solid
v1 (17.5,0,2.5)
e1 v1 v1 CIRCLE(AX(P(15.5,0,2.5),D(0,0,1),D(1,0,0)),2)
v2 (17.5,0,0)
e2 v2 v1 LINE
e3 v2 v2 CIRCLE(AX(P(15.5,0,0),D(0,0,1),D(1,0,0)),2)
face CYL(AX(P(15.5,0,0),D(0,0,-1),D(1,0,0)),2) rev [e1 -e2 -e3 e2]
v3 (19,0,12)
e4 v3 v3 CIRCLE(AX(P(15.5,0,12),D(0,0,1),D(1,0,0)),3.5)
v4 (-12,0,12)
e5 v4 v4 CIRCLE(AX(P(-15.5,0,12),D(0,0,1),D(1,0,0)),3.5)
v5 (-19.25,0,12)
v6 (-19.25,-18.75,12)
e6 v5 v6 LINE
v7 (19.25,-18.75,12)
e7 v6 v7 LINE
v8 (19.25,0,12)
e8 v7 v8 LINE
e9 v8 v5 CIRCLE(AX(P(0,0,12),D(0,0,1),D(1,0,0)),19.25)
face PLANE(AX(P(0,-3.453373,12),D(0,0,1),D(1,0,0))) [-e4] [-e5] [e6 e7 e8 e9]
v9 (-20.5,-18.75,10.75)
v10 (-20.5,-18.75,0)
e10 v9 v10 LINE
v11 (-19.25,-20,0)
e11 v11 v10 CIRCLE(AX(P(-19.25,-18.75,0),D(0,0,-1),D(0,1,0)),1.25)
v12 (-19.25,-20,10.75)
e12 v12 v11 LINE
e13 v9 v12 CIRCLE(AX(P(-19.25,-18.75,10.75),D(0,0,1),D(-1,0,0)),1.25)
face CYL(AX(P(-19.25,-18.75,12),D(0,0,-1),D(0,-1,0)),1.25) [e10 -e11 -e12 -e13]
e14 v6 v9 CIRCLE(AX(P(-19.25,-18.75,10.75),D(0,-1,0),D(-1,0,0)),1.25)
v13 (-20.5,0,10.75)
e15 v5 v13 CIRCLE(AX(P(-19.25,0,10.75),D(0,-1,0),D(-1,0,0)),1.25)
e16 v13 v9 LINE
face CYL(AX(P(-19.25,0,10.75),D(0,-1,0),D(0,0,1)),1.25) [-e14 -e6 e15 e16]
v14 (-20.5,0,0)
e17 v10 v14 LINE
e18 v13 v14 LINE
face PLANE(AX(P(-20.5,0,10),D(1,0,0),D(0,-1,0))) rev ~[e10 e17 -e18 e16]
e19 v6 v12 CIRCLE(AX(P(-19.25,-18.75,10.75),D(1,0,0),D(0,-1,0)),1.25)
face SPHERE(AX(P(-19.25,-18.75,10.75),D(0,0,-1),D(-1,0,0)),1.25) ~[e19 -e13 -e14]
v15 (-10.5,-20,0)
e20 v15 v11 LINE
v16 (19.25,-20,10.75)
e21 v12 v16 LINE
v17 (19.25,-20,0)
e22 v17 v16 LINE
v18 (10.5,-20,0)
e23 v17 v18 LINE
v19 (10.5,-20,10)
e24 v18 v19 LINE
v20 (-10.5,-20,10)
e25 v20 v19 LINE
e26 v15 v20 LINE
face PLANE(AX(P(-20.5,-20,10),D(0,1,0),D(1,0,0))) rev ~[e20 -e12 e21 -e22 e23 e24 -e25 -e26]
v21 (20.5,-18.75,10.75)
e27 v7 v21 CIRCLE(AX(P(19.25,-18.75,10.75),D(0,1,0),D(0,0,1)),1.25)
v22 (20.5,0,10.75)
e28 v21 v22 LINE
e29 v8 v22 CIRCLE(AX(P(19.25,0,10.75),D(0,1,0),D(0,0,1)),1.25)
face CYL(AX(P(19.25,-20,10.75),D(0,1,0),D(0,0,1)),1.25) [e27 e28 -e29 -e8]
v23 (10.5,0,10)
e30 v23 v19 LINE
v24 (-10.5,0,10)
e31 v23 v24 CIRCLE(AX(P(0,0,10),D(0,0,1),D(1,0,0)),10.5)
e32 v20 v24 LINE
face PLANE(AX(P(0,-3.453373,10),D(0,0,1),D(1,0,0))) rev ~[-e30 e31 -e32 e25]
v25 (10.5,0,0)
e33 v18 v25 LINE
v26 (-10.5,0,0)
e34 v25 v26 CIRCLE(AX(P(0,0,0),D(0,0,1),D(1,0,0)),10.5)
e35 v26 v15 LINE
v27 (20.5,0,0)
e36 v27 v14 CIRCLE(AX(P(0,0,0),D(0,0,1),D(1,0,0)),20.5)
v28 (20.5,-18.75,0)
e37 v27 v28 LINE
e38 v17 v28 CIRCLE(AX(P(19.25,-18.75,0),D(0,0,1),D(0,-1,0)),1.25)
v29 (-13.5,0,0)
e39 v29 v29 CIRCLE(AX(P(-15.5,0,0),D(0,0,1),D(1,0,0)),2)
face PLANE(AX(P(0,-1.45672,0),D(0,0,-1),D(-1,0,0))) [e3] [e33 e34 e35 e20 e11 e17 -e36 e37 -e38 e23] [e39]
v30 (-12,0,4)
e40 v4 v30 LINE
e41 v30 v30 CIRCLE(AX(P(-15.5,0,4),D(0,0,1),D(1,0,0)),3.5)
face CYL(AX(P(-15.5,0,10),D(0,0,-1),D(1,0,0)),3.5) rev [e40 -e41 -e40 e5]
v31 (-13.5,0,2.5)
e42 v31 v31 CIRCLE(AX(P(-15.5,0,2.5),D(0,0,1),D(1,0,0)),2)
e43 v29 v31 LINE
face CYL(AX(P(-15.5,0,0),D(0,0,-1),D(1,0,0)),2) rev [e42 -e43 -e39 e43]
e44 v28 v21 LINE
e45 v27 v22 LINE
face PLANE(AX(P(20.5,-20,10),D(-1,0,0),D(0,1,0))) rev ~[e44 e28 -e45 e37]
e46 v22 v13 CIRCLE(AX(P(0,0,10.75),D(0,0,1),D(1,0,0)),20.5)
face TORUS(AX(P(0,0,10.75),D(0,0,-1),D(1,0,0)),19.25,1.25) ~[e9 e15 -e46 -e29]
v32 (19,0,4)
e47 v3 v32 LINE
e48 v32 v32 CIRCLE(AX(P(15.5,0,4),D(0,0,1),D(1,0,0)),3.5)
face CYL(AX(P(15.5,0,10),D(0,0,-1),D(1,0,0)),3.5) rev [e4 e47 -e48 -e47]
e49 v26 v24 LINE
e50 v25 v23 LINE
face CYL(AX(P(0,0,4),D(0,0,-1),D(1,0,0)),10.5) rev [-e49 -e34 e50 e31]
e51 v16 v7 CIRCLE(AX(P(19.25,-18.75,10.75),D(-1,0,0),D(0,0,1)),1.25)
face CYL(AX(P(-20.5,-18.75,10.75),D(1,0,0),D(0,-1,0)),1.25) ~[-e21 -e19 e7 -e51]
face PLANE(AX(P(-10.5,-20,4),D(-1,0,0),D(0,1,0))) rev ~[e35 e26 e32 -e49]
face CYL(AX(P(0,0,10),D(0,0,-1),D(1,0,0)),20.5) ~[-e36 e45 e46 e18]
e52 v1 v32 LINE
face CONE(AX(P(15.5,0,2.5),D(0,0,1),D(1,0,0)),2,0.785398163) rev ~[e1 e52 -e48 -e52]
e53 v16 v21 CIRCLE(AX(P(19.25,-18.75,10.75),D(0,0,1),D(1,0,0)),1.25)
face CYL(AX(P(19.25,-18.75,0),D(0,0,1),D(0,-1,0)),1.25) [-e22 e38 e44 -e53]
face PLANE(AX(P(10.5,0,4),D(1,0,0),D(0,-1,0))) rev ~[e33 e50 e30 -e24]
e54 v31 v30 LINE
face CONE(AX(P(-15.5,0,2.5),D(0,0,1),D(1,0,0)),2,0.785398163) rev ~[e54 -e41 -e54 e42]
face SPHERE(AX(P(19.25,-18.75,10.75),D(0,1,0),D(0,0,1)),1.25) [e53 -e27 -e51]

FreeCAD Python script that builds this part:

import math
import FreeCAD as App
import Part
import Sketcher
Q = App.Units.Quantity


def edges_at(feature, points):
    """Names of the edges that pass closest to the given points."""
    edges = feature.Shape.Edges
    near = lambda p: min(range(len(edges)), key=lambda i: edges[i].distToShape(Part.Vertex(*p))[0])
    return sorted({f"Edge{near(p) + 1}" for p in points})

doc = App.newDocument("Part")
body = doc.addObject("PartDesign::Body", "Body")

sketch1 = body.newObject("Sketcher::SketchObject", "Sketch")
sketch1.AttachmentSupport = (doc.getObject("XY_Plane"), [""])
sketch1.MapMode = "FlatFace"
sketch1.addGeometry([
    Part.LineSegment(App.Vector(-10.5, -20, 0), App.Vector(-10.5, 0, 0)),
    Part.ArcOfCircle(Part.Circle(App.Vector(0, 0, 0), App.Vector(0, 0, 1), 10.5), math.radians(0), math.radians(180)),
    Part.LineSegment(App.Vector(10.5, 0, 0), App.Vector(10.5, -20, 0)),
    Part.LineSegment(App.Vector(10.5, -20, 0), App.Vector(20.5, -20, 0)),
    Part.LineSegment(App.Vector(20.5, -20, 0), App.Vector(20.5, 0, 0)),
    Part.ArcOfCircle(Part.Circle(App.Vector(0, 0, 0), App.Vector(0, 0, 1), 20.5), math.radians(0), math.radians(180)),
    Part.LineSegment(App.Vector(-20.5, 0, 0), App.Vector(-20.5, -20, 0)),
    Part.LineSegment(App.Vector(-20.5, -20, 0), App.Vector(-10.5, -20, 0)),
    Part.Circle(App.Vector(15.5, 0, 0), App.Vector(0, 0, 1), 2),
    Part.Circle(App.Vector(-15.5, 0, 0), App.Vector(0, 0, 1), 2),
], False)
sketch1.addConstraint([
    Sketcher.Constraint("Tangent", 0, 2, 1, 2),
    Sketcher.Constraint("Tangent", 1, 1, 2, 1),
    Sketcher.Constraint("Coincident", 2, 2, 3, 1),
    Sketcher.Constraint("Coincident", 3, 2, 4, 1),
    Sketcher.Constraint("Tangent", 4, 2, 5, 1),
    Sketcher.Constraint("Tangent", 5, 2, 6, 1),
    Sketcher.Constraint("Coincident", 6, 2, 7, 1),
    Sketcher.Constraint("Coincident", 7, 2, 0, 1),
    Sketcher.Constraint("Vertical", 0),
    Sketcher.Constraint("Vertical", 2),
    Sketcher.Constraint("Horizontal", 3),
    Sketcher.Constraint("Vertical", 4),
    Sketcher.Constraint("Vertical", 6),
    Sketcher.Constraint("Horizontal", 7),
    Sketcher.Constraint("Coincident", 1, 3, -1, 1),
    Sketcher.Constraint("Coincident", 5, 3, -1, 1),
    Sketcher.Constraint("Equal", 8, 9),
    Sketcher.Constraint("Symmetric", 8, 3, 9, 3, -1, 1),
    Sketcher.Constraint("PointOnObject", 8, 3, -1),
    Sketcher.Constraint("Horizontal", 3, 2, 6, 2),
    Sketcher.Constraint("Diameter", 8, Q("4 mm")),
    Sketcher.Constraint("Radius", 1, Q("10.5 mm")),
    Sketcher.Constraint("Radius", 5, Q("20.5 mm")),
    Sketcher.Constraint("DistanceY", 0, 1, 0, 2, Q("20 mm")),
    Sketcher.Constraint("DistanceX", 9, 3, 8, 3, Q("31 mm")),
])
pad1 = body.newObject("PartDesign::Pad", "Pad")
pad1.Profile = sketch1
pad1.Length = 4
doc.recompute()

chamfer = body.newObject("PartDesign::Chamfer", "Chamfer")
chamfer.Base = (pad1, edges_at(pad1, [(13.5, 0, 4), (-17.5, 0, 4)]))
chamfer.Size = 1.5

sketch2 = body.newObject("Sketcher::SketchObject", "Sketch001")
sketch2.AttachmentSupport = (doc.getObject("XY_Plane"), [""])
sketch2.MapMode = "FlatFace"
sketch2.AttachmentOffset = App.Placement(App.Vector(0, 0, 4), App.Rotation())
sketch2.addGeometry([
    Part.LineSegment(App.Vector(-20.5, -20, 0), App.Vector(-10.5, -20, 0)),
    Part.LineSegment(App.Vector(-10.5, -20, 0), App.Vector(-10.5, 0, 0)),
    Part.ArcOfCircle(Part.Circle(App.Vector(0, 0, 0), App.Vector(0, 0, 1), 10.5), math.radians(0), math.radians(180)),
    Part.LineSegment(App.Vector(10.5, 0, 0), App.Vector(10.5, -20, 0)),
    Part.LineSegment(App.Vector(10.5, -20, 0), App.Vector(20.5, -20, 0)),
    Part.LineSegment(App.Vector(20.5, -20, 0), App.Vector(20.5, 0, 0)),
    Part.ArcOfCircle(Part.Circle(App.Vector(0, 0, 0), App.Vector(0, 0, 1), 20.5), math.radians(0), math.radians(180)),
    Part.LineSegment(App.Vector(-20.5, 0, 0), App.Vector(-20.5, -20, 0)),
    Part.Circle(App.Vector(15.5, 0, 0), App.Vector(0, 0, 1), 3.5),
    Part.Circle(App.Vector(-15.5, 0, 0), App.Vector(0, 0, 1), 3.5),
], False)
sketch2.addConstraint([
    Sketcher.Constraint("Coincident", 0, 2, 1, 1),
    Sketcher.Constraint("Tangent", 1, 2, 2, 2),
    Sketcher.Constraint("Tangent", 2, 1, 3, 1),
    Sketcher.Constraint("Coincident", 3, 2, 4, 1),
    Sketcher.Constraint("Coincident", 4, 2, 5, 1),
    Sketcher.Constraint("Tangent", 5, 2, 6, 1),
    Sketcher.Constraint("Tangent", 6, 2, 7, 1),
    Sketcher.Constraint("Coincident", 7, 2, 0, 1),
    Sketcher.Constraint("Horizontal", 0),
    Sketcher.Constraint("Vertical", 1),
    Sketcher.Constraint("Vertical", 3),
    Sketcher.Constraint("Horizontal", 4),
    Sketcher.Constraint("Vertical", 5),
    Sketcher.Constraint("Vertical", 7),
    Sketcher.Constraint("Coincident", 2, 3, -1, 1),
    Sketcher.Constraint("Coincident", 6, 3, -1, 1),
    Sketcher.Constraint("Equal", 8, 9),
    Sketcher.Constraint("Symmetric", 8, 3, 9, 3, -1, 1),
    Sketcher.Constraint("PointOnObject", 8, 3, -1),
    Sketcher.Constraint("Horizontal", 0, 2, 3, 2),
    Sketcher.Constraint("Diameter", 8, Q("7 mm")),
    Sketcher.Constraint("Radius", 2, Q("10.5 mm")),
    Sketcher.Constraint("Radius", 6, Q("20.5 mm")),
    Sketcher.Constraint("DistanceY", 1, 1, 1, 2, Q("20 mm")),
    Sketcher.Constraint("DistanceX", 9, 3, 8, 3, Q("31 mm")),
])
pad2 = body.newObject("PartDesign::Pad", "Pad001")
pad2.Profile = sketch2
pad2.Length = 6

sketch3 = body.newObject("Sketcher::SketchObject", "Sketch002")
sketch3.AttachmentSupport = (doc.getObject("XY_Plane"), [""])
sketch3.MapMode = "FlatFace"
sketch3.AttachmentOffset = App.Placement(App.Vector(0, 0, 10), App.Rotation())
sketch3.addGeometry([
    Part.LineSegment(App.Vector(-20.5, -20, 0), App.Vector(20.5, -20, 0)),
    Part.LineSegment(App.Vector(20.5, -20, 0), App.Vector(20.5, 0, 0)),
    Part.ArcOfCircle(Part.Circle(App.Vector(0, 0, 0), App.Vector(0, 0, 1), 20.5), math.radians(0), math.radians(180)),
    Part.LineSegment(App.Vector(-20.5, 0, 0), App.Vector(-20.5, -20, 0)),
    Part.Circle(App.Vector(-15.5, 0, 0), App.Vector(0, 0, 1), 3.5),
    Part.Circle(App.Vector(15.5, 0, 0), App.Vector(0, 0, 1), 3.5),
], False)
sketch3.addConstraint([
    Sketcher.Constraint("Coincident", 0, 2, 1, 1),
    Sketcher.Constraint("Tangent", 1, 2, 2, 1),
    Sketcher.Constraint("Tangent", 2, 2, 3, 1),
    Sketcher.Constraint("Coincident", 3, 2, 0, 1),
    Sketcher.Constraint("Horizontal", 0),
    Sketcher.Constraint("Vertical", 1),
    Sketcher.Constraint("Vertical", 3),
    Sketcher.Constraint("Coincident", 2, 3, -1, 1),
    Sketcher.Constraint("Equal", 4, 5),
    Sketcher.Constraint("Symmetric", 4, 3, 5, 3, -1, 1),
    Sketcher.Constraint("PointOnObject", 4, 3, -1),
    Sketcher.Constraint("Diameter", 4, Q("7 mm")),
    Sketcher.Constraint("Radius", 2, Q("20.5 mm")),
    Sketcher.Constraint("DistanceY", 1, 1, 1, 2, Q("20 mm")),
    Sketcher.Constraint("DistanceX", 4, 3, 5, 3, Q("31 mm")),
])
pad3 = body.newObject("PartDesign::Pad", "Pad002")
pad3.Profile = sketch3
pad3.Length = 2
doc.recompute()

fillet = body.newObject("PartDesign::Fillet", "Fillet")
fillet.Base = (pad3, edges_at(pad3, [
    (-20.5, -20, 6),
    (-20.5, -20, 6),
    (-20.5, -20, 6),
    (-20.5, -10, 12),
    (0, 20.5, 12),
    (0, -20, 12),
    (20.5, -10, 12),
    (20.5, -20, 6),
    (20.5, -20, 6),
    (20.5, -20, 6),
]))
fillet.Radius = 1.25

doc.recompute()
